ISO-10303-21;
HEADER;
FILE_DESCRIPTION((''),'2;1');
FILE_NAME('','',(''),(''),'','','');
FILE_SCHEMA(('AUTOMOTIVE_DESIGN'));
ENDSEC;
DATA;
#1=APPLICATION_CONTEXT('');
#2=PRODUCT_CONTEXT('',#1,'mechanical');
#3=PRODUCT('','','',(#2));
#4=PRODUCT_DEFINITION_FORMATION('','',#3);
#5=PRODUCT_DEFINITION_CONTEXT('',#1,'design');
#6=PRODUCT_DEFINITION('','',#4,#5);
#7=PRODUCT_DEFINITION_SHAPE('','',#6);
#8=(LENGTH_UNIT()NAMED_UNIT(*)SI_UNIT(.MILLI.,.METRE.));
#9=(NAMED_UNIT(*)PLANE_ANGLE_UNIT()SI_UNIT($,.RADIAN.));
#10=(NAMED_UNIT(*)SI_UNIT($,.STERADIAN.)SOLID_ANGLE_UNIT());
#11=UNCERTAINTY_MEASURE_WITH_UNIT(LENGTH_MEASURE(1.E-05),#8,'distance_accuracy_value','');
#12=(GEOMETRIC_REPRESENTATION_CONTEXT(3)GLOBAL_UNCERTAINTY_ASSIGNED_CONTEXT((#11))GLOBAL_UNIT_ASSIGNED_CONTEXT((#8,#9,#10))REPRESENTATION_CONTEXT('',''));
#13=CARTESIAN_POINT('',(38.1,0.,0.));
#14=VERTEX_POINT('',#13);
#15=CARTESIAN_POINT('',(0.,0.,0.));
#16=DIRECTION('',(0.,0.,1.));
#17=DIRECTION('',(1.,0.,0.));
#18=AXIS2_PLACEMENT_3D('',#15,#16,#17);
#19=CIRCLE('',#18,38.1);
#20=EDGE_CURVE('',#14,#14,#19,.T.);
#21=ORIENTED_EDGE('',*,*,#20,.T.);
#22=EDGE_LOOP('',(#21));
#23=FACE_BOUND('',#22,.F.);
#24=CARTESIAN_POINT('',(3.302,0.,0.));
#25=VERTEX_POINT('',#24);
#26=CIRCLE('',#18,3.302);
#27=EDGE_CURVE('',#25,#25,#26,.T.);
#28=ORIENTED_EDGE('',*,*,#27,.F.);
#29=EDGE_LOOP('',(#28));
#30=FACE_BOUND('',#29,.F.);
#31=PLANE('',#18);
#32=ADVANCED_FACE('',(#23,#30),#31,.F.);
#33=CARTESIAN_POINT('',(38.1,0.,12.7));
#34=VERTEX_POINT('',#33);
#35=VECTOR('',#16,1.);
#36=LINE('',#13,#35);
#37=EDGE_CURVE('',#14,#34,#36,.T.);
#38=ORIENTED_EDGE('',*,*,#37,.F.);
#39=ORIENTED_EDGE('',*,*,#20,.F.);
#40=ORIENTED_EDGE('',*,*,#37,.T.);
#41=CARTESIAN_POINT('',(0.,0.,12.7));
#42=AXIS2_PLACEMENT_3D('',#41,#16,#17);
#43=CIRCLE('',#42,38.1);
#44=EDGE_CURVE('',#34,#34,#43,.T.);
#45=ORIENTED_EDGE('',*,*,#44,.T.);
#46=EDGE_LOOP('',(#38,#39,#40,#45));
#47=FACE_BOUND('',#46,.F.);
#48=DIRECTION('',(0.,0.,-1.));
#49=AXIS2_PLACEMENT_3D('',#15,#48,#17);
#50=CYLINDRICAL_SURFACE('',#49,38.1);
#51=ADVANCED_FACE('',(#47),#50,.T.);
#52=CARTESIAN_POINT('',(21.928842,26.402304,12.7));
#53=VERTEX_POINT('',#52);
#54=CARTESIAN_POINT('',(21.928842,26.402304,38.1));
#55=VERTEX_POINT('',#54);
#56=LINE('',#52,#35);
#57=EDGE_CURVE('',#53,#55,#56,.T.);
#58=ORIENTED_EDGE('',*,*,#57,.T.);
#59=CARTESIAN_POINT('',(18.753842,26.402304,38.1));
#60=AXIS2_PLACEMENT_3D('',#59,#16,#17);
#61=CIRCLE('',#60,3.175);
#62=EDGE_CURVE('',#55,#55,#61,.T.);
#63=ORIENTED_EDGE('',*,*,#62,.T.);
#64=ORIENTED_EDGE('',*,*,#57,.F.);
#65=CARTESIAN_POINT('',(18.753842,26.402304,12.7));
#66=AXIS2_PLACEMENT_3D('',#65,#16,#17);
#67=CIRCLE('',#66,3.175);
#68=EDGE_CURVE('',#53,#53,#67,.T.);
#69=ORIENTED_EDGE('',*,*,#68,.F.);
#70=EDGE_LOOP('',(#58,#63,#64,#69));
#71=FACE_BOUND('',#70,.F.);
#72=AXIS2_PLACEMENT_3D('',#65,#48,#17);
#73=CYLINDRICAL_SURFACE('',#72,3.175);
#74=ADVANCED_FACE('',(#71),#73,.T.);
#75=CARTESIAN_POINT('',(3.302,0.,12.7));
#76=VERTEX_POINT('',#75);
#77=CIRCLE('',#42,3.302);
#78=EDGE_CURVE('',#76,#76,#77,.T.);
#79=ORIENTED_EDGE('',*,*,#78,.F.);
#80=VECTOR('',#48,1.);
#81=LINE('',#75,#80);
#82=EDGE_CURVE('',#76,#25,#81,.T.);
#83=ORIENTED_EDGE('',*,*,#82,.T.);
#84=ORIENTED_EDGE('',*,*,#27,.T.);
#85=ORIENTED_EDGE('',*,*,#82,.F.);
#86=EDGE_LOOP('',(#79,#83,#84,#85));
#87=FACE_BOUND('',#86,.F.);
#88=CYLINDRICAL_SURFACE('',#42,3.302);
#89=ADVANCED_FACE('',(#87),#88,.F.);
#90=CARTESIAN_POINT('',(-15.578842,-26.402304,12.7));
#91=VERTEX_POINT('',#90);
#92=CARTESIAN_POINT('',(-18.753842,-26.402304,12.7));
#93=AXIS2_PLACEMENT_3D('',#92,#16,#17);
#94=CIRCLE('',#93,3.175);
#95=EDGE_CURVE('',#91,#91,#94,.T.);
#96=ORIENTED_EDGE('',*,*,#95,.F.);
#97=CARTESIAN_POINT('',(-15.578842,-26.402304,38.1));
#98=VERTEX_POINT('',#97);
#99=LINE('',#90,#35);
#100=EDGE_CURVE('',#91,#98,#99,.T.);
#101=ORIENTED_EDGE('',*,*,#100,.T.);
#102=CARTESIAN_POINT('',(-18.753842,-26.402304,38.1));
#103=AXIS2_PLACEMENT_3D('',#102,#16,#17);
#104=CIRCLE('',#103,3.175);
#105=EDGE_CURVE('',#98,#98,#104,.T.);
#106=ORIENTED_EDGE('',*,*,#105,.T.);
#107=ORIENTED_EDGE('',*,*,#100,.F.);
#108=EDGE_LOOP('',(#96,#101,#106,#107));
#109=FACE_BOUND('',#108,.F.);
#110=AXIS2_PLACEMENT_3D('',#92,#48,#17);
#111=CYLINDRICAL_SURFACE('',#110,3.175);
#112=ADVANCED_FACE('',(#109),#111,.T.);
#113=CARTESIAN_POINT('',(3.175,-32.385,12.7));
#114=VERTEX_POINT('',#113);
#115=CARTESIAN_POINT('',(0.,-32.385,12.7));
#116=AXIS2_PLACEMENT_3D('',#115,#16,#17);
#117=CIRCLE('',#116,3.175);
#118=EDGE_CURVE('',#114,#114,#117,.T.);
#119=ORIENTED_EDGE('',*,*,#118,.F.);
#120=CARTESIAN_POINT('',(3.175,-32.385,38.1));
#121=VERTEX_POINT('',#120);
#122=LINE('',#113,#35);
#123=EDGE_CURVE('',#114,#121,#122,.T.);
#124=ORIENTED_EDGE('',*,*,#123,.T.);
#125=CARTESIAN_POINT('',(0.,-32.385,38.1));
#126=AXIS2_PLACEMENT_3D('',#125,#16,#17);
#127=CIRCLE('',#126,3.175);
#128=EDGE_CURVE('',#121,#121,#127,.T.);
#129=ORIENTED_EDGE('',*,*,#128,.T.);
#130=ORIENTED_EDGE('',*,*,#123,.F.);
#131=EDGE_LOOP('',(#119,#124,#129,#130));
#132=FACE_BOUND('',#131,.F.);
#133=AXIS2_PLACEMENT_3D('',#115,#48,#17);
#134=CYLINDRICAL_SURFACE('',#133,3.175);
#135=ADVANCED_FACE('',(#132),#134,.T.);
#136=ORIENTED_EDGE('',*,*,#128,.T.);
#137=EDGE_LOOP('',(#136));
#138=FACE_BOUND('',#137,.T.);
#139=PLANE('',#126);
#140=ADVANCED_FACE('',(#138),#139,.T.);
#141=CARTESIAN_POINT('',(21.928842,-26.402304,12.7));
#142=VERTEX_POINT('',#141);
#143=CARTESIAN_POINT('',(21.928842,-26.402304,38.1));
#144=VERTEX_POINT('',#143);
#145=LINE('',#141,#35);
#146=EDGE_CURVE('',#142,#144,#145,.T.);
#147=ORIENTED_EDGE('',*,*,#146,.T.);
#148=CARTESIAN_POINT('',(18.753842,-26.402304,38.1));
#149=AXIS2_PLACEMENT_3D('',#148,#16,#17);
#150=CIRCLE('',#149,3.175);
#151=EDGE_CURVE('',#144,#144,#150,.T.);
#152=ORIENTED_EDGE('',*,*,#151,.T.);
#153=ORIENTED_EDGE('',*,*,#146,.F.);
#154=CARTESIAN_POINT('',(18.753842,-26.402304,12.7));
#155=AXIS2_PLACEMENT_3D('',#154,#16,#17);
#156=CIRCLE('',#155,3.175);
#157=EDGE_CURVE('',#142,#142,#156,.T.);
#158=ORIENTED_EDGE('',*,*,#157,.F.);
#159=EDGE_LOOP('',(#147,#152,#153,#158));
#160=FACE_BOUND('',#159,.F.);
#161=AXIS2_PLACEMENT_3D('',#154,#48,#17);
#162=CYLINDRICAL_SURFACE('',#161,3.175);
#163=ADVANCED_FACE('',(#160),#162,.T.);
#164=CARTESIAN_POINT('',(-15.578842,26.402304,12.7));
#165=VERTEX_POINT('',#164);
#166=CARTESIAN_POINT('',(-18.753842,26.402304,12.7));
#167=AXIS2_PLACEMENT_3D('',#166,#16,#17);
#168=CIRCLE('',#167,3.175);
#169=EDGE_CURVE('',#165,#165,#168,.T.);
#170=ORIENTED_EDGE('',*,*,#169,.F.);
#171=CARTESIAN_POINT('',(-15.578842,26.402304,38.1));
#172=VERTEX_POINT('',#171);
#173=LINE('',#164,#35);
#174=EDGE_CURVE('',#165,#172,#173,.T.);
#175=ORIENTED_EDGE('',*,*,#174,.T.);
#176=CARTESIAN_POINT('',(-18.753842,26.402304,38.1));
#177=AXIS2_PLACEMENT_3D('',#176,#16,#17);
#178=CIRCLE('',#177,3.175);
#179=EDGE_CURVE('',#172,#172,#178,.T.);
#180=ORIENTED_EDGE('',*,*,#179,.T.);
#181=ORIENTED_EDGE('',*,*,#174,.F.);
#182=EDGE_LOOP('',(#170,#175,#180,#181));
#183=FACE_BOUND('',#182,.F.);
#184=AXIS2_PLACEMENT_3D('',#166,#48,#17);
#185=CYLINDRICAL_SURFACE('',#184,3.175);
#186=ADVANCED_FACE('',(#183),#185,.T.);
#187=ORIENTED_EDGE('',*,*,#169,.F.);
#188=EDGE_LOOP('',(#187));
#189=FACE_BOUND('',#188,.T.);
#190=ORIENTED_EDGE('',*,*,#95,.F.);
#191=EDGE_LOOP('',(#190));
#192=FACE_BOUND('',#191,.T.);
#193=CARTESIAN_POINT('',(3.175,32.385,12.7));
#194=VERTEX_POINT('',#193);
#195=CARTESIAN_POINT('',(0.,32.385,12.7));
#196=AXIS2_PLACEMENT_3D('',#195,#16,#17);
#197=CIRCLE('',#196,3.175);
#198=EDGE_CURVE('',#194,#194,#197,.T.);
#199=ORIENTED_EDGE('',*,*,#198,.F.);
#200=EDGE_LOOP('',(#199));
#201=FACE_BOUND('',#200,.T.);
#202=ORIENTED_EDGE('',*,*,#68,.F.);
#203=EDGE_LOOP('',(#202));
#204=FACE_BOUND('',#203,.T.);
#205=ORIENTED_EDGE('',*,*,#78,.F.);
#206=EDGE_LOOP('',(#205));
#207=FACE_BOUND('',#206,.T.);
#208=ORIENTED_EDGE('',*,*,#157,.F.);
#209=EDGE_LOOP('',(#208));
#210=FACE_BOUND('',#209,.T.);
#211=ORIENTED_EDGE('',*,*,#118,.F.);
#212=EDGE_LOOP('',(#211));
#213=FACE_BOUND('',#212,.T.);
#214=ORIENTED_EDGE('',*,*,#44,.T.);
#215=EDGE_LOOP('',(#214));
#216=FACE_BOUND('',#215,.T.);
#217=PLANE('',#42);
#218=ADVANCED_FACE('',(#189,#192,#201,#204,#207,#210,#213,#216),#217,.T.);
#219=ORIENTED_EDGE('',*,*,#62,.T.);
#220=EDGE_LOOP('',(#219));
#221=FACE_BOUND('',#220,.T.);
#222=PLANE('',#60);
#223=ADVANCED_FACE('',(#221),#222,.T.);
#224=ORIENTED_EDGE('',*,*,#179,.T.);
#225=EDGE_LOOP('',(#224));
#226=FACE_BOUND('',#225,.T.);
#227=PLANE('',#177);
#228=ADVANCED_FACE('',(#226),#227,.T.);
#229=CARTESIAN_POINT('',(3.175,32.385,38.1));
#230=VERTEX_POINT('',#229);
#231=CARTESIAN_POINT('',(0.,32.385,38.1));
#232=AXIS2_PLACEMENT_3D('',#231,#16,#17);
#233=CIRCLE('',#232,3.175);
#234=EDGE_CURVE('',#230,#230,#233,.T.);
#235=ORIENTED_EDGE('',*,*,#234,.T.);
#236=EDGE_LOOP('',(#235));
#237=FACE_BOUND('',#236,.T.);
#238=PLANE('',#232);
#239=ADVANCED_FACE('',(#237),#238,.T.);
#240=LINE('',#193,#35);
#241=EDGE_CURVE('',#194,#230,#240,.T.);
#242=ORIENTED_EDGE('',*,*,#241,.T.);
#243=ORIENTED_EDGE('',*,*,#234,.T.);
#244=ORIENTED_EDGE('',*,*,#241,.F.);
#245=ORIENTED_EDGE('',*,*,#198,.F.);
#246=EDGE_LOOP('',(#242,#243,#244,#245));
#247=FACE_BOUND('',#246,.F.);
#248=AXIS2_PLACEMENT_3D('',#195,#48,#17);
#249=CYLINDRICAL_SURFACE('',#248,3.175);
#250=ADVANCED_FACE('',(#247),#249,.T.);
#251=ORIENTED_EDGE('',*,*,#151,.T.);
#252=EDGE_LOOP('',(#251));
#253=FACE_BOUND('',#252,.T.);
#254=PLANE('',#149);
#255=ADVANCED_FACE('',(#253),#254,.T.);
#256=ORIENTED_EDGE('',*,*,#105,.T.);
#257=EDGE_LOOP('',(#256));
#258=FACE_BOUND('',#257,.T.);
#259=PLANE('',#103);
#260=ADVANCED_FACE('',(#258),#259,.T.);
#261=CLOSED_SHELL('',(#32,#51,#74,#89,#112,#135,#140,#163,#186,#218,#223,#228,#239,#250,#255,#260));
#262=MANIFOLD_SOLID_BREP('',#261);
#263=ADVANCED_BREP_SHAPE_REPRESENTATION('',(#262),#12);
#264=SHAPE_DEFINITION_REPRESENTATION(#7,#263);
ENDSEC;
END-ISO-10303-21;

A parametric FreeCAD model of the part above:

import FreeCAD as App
import Part
import Sketcher

V = App.Vector
Q = App.Units.Quantity

doc = App.newDocument("Part")
body = doc.addObject("PartDesign::Body", "Body")

sketch1 = body.newObject("Sketcher::SketchObject", "Sketch")
sketch1.AttachmentSupport = (doc.getObject("XY_Plane"), [""])
sketch1.MapMode = "FlatFace"
sketch1.addGeometry(Part.Circle(V(0, 0, 0), V(0, 0, 1), 38), False)
sketch1.addConstraint([
    Sketcher.Constraint("Coincident", 0, 3, -1, 1),
    Sketcher.Constraint("Diameter", 0, Q("3 in")),
])
pad1 = body.newObject("PartDesign::Pad", "Pad")
pad1.Profile = sketch1
pad1.Length = Q("0.5 in")

sketch2 = body.newObject("Sketcher::SketchObject", "Sketch001")
sketch2.AttachmentSupport = (doc.getObject("XY_Plane"), [""])
sketch2.MapMode = "FlatFace"
sketch2.AttachmentOffset = App.Placement(V(0, 0, 0.5 * 25.4), App.Rotation())
sketch2.addGeometry([
    Part.Circle(V(0, 32.4, 0), V(0, 0, 1), 3.2),
    Part.Circle(V(-18.8, 26.4, 0), V(0, 0, 1), 3.2),
    Part.Circle(V(18.8, 26.4, 0), V(0, 0, 1), 3.2),
], False)
sketch2.addConstraint([
    Sketcher.Constraint("Equal", 0, 1),
    Sketcher.Constraint("Equal", 1, 2),
    Sketcher.Constraint("Symmetric", 1, 3, 2, 3, -2),
    Sketcher.Constraint("PointOnObject", 0, 3, -2),
    Sketcher.Constraint("Diameter", 0, Q("0.25 in")),
    Sketcher.Constraint("DistanceY", -1, 1, 0, 3, Q("1.275 in")),
    Sketcher.Constraint("DistanceX", 1, 3, -1, 1, 18.753842),
    Sketcher.Constraint("DistanceY", -1, 1, 1, 3, 26.402304),
])
pad2 = body.newObject("PartDesign::Pad", "Pad001")
pad2.Profile = sketch2
pad2.Length = Q("1 in")

sketch3 = body.newObject("Sketcher::SketchObject", "Sketch002")
sketch3.AttachmentSupport = (doc.getObject("XY_Plane"), [""])
sketch3.MapMode = "FlatFace"
sketch3.AttachmentOffset = App.Placement(V(0, 0, 0.5 * 25.4), App.Rotation())
sketch3.addGeometry([
    Part.Circle(V(-18.8, -26.4, 0), V(0, 0, 1), 3.2),
    Part.Circle(V(0, -32.4, 0), V(0, 0, 1), 3.2),
    Part.Circle(V(18.8, -26.4, 0), V(0, 0, 1), 3.2),
], False)
sketch3.addConstraint([
    Sketcher.Constraint("Equal", 0, 1),
    Sketcher.Constraint("Equal", 1, 2),
    Sketcher.Constraint("Symmetric", 0, 3, 2, 3, -2),
    Sketcher.Constraint("PointOnObject", 1, 3, -2),
    Sketcher.Constraint("Diameter", 0, Q("0.25 in")),
    Sketcher.Constraint("DistanceY", 1, 3, -1, 1, Q("1.275 in")),
    Sketcher.Constraint("DistanceX", 0, 3, -1, 1, 18.753842),
    Sketcher.Constraint("DistanceY", 0, 3, -1, 1, 26.402304),
])
pad3 = body.newObject("PartDesign::Pad", "Pad002")
pad3.Profile = sketch3
pad3.Length = Q("1 in")

sketch4 = body.newObject("Sketcher::SketchObject", "Sketch003")
sketch4.AttachmentSupport = (doc.getObject("XY_Plane"), [""])
sketch4.MapMode = "FlatFace"
sketch4.AttachmentOffset = App.Placement(V(0, 0, 0.5 * 25.4), App.Rotation())
sketch4.addGeometry(Part.Circle(V(0, 0, 0), V(0, 0, 1), 3.3), False)
sketch4.addConstraint([
    Sketcher.Constraint("Coincident", 0, 3, -1, 1),
    Sketcher.Constraint("Diameter", 0, Q("0.26 in")),
])
pocket1 = body.newObject("PartDesign::Pocket", "Pocket")
pocket1.Profile = sketch4
pocket1.Length = Q("0.5 in")

doc.recompute()
